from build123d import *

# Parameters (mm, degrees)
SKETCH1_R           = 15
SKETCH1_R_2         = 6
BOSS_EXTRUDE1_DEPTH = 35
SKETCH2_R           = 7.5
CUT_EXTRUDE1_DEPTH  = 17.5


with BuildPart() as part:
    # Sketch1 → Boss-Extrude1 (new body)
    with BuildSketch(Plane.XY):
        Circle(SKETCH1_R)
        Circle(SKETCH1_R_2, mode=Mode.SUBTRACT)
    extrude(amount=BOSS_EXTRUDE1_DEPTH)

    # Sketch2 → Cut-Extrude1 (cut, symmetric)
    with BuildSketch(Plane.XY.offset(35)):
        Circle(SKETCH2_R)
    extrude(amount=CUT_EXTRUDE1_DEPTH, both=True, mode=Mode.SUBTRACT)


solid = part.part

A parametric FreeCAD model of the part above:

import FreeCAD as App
import Part
import Sketcher
from FreeCAD import Vector
Q = App.Units.Quantity

doc = App.newDocument("Part")
body = doc.addObject("PartDesign::Body", "Body")

# Sketch on XY plane
sketch1 = body.newObject("Sketcher::SketchObject", "Sketch")
sketch1.AttachmentSupport = (doc.getObject("XY_Plane"), [""])
sketch1.MapMode = "FlatFace"
sketch1.addGeometry([
    Part.Circle(Vector(0, 0, 0), Vector(0, 0, 1), 15),
    Part.Circle(Vector(0, 0, 0), Vector(0, 0, 1), 6),
], False)
sketch1.addConstraint([
    Sketcher.Constraint("Coincident", 0, 3, -1, 1),
    Sketcher.Constraint("Coincident", 1, 3, -1, 1),
    Sketcher.Constraint("Diameter", 0, Q("30 mm")),
    Sketcher.Constraint("Diameter", 1, Q("12 mm")),
])
pad1 = body.newObject("PartDesign::Pad", "Pad")
pad1.Profile = sketch1
pad1.Length = 35

# Sketch on XY plane
sketch2 = body.newObject("Sketcher::SketchObject", "Sketch001")
sketch2.AttachmentSupport = (doc.getObject("XY_Plane"), [""])
sketch2.MapMode = "FlatFace"
sketch2.AttachmentOffset = App.Placement(Vector(0, 0, 35), App.Rotation())
sketch2.addGeometry(Part.Circle(Vector(0, 0, 0), Vector(0, 0, 1), 8), False)
sketch2.addConstraint([
    Sketcher.Constraint("Coincident", 0, 3, -1, 1),
    Sketcher.Constraint("Diameter", 0, Q("15 mm")),
])
pocket1 = body.newObject("PartDesign::Pocket", "Pocket")
pocket1.Profile = sketch2
pocket1.Length = 35
pocket1.Midplane = True

doc.recompute()
